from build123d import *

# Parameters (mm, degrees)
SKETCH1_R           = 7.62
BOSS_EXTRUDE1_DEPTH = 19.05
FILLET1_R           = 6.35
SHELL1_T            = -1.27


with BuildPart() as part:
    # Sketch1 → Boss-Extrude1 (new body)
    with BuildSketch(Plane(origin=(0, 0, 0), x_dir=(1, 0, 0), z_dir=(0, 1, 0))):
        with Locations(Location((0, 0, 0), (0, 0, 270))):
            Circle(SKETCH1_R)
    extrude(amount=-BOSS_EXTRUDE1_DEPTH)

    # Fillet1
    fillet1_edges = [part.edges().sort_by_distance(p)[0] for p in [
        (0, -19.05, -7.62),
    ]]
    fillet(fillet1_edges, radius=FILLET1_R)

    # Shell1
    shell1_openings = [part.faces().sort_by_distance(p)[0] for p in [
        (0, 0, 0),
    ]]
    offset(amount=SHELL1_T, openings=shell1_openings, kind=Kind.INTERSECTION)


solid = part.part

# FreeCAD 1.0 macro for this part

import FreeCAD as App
import Part
import Sketcher

V = App.Vector
Q = App.Units.Quantity


def edges_at(feature, points):
    """Names of the edges that pass closest to the given points."""
    edges = feature.Shape.Edges
    near = lambda p: min(range(len(edges)), key=lambda i: edges[i].distToShape(Part.Vertex(*p))[0])
    return sorted({f"Edge{near(p) + 1}" for p in points})


def faces_at(feature, points):
    """Names of the faces that lie closest to the given points."""
    faces = feature.Shape.Faces
    near = lambda p: min(range(len(faces)), key=lambda i: faces[i].distToShape(Part.Vertex(*p))[0])
    return sorted({f"Face{near(p) + 1}" for p in points})

doc = App.newDocument("Part")
body = doc.addObject("PartDesign::Body", "Body")

# Sketch on XZ plane
sketch1 = body.newObject("Sketcher::SketchObject", "Sketch")
sketch1.AttachmentSupport = (doc.getObject("XZ_Plane"), [""])
sketch1.MapMode = "FlatFace"
sketch1.addGeometry(Part.Circle(V(0, 0, 0), V(0, 0, 1), 8), False)
sketch1.addConstraint(Sketcher.Constraint("Coincident", 0, 3, -1, 1))
sketch1.addConstraint(Sketcher.Constraint("Diameter", 0, Q("0.6 in")))
pad1 = body.newObject("PartDesign::Pad", "Pad")
pad1.Profile = sketch1
pad1.Length = Q("0.75 in")
doc.recompute()

fillet = body.newObject("PartDesign::Fillet", "Fillet")
fillet.Base = (pad1, edges_at(pad1, [(0, -19.05, -7.62)]))
fillet.Radius = Q("0.25 in")
doc.recompute()

thickness = body.newObject("PartDesign::Thickness", "Thickness")
thickness.Base = (fillet, faces_at(fillet, [(0, 0, 0)]))
thickness.Value = Q("0.05 in")
thickness.Reversed = True
thickness.Join = "Intersection"

doc.recompute()
